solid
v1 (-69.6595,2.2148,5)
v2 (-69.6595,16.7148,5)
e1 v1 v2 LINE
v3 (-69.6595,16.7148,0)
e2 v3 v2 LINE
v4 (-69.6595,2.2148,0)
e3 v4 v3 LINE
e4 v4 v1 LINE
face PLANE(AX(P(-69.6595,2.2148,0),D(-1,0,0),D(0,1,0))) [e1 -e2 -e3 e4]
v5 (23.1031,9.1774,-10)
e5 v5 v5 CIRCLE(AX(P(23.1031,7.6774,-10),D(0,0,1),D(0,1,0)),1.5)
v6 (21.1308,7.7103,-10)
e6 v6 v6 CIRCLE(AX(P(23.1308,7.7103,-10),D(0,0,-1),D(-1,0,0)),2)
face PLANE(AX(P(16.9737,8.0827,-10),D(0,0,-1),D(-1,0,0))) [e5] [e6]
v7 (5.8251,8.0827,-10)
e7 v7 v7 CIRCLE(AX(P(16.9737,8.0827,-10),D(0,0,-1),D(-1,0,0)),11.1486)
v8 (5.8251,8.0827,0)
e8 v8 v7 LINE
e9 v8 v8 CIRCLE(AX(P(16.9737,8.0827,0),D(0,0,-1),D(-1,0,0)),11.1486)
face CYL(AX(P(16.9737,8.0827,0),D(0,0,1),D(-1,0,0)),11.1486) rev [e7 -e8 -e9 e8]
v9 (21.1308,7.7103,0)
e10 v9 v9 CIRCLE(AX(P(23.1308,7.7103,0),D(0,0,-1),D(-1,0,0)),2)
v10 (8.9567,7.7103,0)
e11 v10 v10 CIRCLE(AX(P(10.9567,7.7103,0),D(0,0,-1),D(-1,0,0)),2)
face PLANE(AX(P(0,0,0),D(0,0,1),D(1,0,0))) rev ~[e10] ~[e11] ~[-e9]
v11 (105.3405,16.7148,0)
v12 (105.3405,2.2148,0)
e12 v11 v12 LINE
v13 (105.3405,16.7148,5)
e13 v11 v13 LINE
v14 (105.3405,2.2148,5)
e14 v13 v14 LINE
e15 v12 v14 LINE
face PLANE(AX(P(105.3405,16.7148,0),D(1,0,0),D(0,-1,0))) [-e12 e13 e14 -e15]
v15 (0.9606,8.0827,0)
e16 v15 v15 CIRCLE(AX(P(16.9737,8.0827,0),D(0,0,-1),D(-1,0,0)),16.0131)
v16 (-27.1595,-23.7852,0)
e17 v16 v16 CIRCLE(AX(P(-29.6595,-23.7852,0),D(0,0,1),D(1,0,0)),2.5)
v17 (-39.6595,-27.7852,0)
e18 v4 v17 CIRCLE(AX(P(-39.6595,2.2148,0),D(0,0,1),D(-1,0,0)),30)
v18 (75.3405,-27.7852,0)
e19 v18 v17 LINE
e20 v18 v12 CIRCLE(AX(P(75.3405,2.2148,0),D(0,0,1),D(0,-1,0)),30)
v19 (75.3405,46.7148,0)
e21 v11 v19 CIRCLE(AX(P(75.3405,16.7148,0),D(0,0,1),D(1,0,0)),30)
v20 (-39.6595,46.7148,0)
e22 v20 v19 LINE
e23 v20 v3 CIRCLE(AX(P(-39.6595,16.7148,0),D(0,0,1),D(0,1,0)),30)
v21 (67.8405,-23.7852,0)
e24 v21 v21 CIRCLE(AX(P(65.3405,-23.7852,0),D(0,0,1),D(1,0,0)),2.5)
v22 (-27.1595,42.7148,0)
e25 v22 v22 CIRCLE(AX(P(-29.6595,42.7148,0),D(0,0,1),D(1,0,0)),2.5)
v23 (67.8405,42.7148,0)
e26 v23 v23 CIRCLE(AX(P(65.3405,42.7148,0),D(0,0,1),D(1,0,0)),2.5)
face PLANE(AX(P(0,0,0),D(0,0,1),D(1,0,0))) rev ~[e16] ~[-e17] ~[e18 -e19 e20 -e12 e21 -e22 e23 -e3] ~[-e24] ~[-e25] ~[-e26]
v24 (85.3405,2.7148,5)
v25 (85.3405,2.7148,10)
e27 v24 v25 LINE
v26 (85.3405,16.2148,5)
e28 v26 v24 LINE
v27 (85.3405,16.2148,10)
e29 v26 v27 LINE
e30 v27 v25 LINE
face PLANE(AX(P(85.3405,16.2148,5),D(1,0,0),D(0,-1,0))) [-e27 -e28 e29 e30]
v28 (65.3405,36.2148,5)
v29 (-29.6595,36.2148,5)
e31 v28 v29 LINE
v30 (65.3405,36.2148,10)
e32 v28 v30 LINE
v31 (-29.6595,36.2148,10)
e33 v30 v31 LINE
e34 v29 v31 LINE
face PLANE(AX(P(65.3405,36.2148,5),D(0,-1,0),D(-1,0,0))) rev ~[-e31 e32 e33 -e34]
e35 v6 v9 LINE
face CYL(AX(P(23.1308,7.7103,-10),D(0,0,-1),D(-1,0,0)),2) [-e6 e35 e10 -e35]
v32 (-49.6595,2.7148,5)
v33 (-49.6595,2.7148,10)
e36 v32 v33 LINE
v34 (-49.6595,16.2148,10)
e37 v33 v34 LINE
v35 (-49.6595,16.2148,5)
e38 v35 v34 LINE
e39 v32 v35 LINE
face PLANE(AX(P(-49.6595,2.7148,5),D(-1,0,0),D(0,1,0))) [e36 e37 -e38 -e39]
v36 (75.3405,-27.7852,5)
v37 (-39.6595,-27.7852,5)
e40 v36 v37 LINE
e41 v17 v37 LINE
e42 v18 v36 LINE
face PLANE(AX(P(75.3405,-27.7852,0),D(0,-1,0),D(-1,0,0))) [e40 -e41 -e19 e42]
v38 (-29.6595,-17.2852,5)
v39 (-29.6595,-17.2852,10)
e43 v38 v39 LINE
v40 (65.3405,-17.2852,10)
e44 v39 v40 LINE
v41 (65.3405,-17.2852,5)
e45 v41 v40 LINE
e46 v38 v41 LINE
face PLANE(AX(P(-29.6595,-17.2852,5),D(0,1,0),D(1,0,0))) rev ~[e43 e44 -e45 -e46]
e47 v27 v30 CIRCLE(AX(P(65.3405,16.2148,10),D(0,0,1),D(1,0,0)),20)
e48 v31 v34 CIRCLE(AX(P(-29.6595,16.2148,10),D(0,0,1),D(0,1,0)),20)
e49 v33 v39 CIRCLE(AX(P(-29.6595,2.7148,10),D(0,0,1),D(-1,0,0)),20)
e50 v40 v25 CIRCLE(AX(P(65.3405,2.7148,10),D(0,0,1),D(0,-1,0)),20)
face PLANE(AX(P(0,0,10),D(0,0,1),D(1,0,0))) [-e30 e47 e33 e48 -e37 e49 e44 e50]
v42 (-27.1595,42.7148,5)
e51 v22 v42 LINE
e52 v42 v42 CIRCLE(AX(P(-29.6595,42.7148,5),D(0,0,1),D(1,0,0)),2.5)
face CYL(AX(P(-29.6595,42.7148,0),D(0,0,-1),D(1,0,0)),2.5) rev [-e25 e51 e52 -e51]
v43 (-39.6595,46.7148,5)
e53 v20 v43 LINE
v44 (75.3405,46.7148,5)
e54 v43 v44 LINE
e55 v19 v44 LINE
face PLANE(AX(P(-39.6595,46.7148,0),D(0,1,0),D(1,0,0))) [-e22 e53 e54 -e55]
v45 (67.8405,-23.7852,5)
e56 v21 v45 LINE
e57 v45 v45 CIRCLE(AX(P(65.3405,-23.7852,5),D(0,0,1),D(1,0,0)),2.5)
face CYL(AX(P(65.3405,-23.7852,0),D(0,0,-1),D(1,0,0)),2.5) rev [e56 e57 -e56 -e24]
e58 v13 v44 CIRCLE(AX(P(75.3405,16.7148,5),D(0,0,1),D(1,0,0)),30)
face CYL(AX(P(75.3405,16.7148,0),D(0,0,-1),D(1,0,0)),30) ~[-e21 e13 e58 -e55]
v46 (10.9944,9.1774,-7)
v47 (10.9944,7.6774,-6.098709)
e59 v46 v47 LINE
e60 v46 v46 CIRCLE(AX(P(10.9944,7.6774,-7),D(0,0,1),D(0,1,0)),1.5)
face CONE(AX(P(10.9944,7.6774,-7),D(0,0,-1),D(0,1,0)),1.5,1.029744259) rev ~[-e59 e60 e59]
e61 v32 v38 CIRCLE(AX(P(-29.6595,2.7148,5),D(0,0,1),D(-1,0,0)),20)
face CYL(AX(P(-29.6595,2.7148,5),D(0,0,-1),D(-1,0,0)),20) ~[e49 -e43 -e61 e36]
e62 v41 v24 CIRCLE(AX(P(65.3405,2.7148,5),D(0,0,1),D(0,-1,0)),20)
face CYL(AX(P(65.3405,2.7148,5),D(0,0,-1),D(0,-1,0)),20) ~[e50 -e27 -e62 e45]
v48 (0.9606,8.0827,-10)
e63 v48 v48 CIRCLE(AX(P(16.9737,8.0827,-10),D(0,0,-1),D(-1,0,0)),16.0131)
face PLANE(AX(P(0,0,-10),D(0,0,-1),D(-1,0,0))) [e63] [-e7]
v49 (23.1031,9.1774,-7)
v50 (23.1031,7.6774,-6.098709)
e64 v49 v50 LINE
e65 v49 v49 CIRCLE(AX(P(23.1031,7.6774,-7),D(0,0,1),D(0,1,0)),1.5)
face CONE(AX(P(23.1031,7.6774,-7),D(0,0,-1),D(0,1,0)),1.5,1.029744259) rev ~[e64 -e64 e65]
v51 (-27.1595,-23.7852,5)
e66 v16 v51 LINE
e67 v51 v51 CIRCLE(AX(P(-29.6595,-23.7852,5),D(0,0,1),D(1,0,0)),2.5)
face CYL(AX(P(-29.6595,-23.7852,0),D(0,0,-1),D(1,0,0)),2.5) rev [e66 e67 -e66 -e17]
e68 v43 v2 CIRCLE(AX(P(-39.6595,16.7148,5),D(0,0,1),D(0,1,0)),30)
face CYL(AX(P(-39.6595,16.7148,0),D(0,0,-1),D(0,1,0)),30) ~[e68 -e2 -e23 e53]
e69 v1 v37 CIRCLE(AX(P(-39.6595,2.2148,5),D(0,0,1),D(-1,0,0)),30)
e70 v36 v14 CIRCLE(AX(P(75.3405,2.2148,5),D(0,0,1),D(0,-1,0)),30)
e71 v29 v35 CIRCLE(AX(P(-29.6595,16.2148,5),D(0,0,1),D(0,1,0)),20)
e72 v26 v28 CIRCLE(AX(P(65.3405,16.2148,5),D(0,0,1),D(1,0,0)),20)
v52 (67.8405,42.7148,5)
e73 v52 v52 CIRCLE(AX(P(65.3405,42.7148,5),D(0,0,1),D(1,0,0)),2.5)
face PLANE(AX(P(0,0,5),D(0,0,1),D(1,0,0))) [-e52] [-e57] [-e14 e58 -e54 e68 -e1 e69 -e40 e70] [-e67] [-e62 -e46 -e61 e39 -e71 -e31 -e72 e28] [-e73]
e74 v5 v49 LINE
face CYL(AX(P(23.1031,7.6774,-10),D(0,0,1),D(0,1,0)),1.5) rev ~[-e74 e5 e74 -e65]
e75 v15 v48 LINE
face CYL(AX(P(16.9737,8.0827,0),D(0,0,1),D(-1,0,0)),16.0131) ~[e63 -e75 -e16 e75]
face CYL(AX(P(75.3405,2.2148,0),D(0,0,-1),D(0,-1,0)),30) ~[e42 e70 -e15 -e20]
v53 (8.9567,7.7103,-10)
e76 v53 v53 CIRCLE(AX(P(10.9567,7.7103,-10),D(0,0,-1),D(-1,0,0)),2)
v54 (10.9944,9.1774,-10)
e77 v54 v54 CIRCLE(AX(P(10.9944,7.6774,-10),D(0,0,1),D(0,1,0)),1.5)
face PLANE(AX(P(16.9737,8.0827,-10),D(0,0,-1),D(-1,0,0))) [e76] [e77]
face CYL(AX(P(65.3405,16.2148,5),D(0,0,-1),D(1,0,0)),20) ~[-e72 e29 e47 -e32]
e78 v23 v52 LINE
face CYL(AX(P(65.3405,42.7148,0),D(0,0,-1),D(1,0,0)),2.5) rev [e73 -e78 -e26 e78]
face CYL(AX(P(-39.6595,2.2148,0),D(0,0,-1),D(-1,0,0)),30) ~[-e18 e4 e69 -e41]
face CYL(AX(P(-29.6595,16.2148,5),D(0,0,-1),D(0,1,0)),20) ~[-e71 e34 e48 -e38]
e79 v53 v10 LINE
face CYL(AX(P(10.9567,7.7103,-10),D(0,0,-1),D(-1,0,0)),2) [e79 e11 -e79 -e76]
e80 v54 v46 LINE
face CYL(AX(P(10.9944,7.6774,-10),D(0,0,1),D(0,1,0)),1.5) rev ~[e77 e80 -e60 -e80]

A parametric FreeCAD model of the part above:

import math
import FreeCAD as App
import Part
import Sketcher

V = App.Vector

doc = App.newDocument("Part")
body = doc.addObject("PartDesign::Body", "Body")

# Sketch on XY plane
sketch1 = doc.addObject("Sketcher::SketchObject", "Sketch")
body.addObject(sketch1)
sketch1.AttachmentSupport = (doc.XY_Plane, [""])
sketch1.MapMode = "FlatFace"
sketch1.addGeometry([
    Part.LineSegment(V(75.3, 46.7, 0), V(-39.7, 46.7, 0)),  # 0
    Part.ArcOfCircle(Part.Circle(V(-39.7, 16.7, 0), V(0, 0, 1), 30), math.radians(90), math.radians(180)),  # 1
    Part.LineSegment(V(-69.7, 16.7, 0), V(-69.7, 2.2, 0)),  # 2
    Part.ArcOfCircle(Part.Circle(V(-39.7, 2.2, 0), V(0, 0, 1), 30), math.radians(180), math.radians(270)),  # 3
    Part.LineSegment(V(-39.7, -27.8, 0), V(75.3, -27.8, 0)),  # 4
    Part.ArcOfCircle(Part.Circle(V(75.3, 2.2, 0), V(0, 0, 1), 30), math.radians(-90), math.radians(0)),  # 5
    Part.LineSegment(V(105.3, 2.2, 0), V(105.3, 16.7, 0)),  # 6
    Part.ArcOfCircle(Part.Circle(V(75.3, 16.7, 0), V(0, 0, 1), 30), math.radians(0), math.radians(90)),  # 7
    Part.Circle(V(-29.7, -23.8, 0), V(0, 0, 1), 2.5),  # 8
    Part.Circle(V(65.3, -23.8, 0), V(0, 0, 1), 2.5),  # 9
    Part.Circle(V(-29.7, 42.7, 0), V(0, 0, 1), 2.5),  # 10
    Part.Circle(V(65.3, 42.7, 0), V(0, 0, 1), 2.5),  # 11
], False)
sketch1.addConstraint([
    Sketcher.Constraint("Tangent", 0, 2, 1, 1),
    Sketcher.Constraint("Tangent", 1, 2, 2, 1),
    Sketcher.Constraint("Tangent", 2, 2, 3, 1),
    Sketcher.Constraint("Tangent", 3, 2, 4, 1),
    Sketcher.Constraint("Tangent", 4, 2, 5, 1),
    Sketcher.Constraint("Tangent", 5, 2, 6, 1),
    Sketcher.Constraint("Tangent", 6, 2, 7, 1),
    Sketcher.Constraint("Tangent", 7, 2, 0, 1),
    Sketcher.Constraint("Horizontal", 0),
    Sketcher.Constraint("Vertical", 2),
    Sketcher.Constraint("Horizontal", 4),
    Sketcher.Constraint("Vertical", 6),
    Sketcher.Constraint("Equal", 1, 3),
    Sketcher.Constraint("Equal", 3, 5),
    Sketcher.Constraint("Equal", 5, 7),
    Sketcher.Constraint("Equal", 8, 9),
    Sketcher.Constraint("Equal", 9, 10),
    Sketcher.Constraint("Equal", 10, 11),
    Sketcher.Constraint("Horizontal", 8, 3, 9, 3),
    Sketcher.Constraint("Horizontal", 10, 3, 11, 3),
    Sketcher.Constraint("Vertical", 8, 3, 10, 3),
    Sketcher.Constraint("Vertical", 9, 3, 11, 3),
    Sketcher.Constraint("Diameter", 8, 5.0),
    Sketcher.Constraint("Radius", 1, 30.0),
    Sketcher.Constraint("DistanceY", 10, 3, 0, 2, 4.0),
    Sketcher.Constraint("DistanceX", 1, 2, 10, 3, 40.0),
    Sketcher.Constraint("DistanceY", 3, 2, 8, 3, 4.0),
    Sketcher.Constraint("DistanceX", 9, 3, 5, 2, 40.0),
    Sketcher.Constraint("DistanceY", 8, 3, 10, 3, 66.5),
    Sketcher.Constraint("DistanceX", 0, 2, 0, 1, 115.0),
    Sketcher.Constraint("DistanceX", 1, 3, -1, 1, 39.6595),
    Sketcher.Constraint("DistanceY", -1, 1, 1, 3, 16.7148),
])
pad1 = doc.addObject("PartDesign::Pad", "Pad")
body.addObject(pad1)
pad1.Profile = sketch1
pad1.Length = 5

# Sketch on XY plane
sketch2 = doc.addObject("Sketcher::SketchObject", "Sketch001")
body.addObject(sketch2)
sketch2.AttachmentSupport = (doc.XY_Plane, [""])
sketch2.MapMode = "FlatFace"
sketch2.AttachmentOffset = App.Placement(V(0, 0, 5), App.Rotation())
sketch2.addGeometry([
    Part.LineSegment(V(85, 3, 0), V(85, 16, 0)),  # 0
    Part.ArcOfCircle(Part.Circle(V(65, 16, 0), V(0, 0, 1), 20), math.radians(0), math.radians(90)),  # 1
    Part.LineSegment(V(65, 36, 0), V(-30, 36, 0)),  # 2
    Part.ArcOfCircle(Part.Circle(V(-30, 16, 0), V(0, 0, 1), 20), math.radians(90), math.radians(180)),  # 3
    Part.LineSegment(V(-50, 16, 0), V(-50, 3, 0)),  # 4
    Part.ArcOfCircle(Part.Circle(V(-30, 3, 0), V(0, 0, 1), 20), math.radians(180), math.radians(270)),  # 5
    Part.LineSegment(V(-30, -17, 0), V(65, -17, 0)),  # 6
    Part.ArcOfCircle(Part.Circle(V(65, 3, 0), V(0, 0, 1), 20), math.radians(-90), math.radians(0)),  # 7
], False)
sketch2.addConstraint([
    Sketcher.Constraint("Tangent", 0, 2, 1, 1),
    Sketcher.Constraint("Tangent", 1, 2, 2, 1),
    Sketcher.Constraint("Tangent", 2, 2, 3, 1),
    Sketcher.Constraint("Tangent", 3, 2, 4, 1),
    Sketcher.Constraint("Tangent", 4, 2, 5, 1),
    Sketcher.Constraint("Tangent", 5, 2, 6, 1),
    Sketcher.Constraint("Tangent", 6, 2, 7, 1),
    Sketcher.Constraint("Tangent", 7, 2, 0, 1),
    Sketcher.Constraint("Vertical", 0),
    Sketcher.Constraint("Horizontal", 2),
    Sketcher.Constraint("Vertical", 4),
    Sketcher.Constraint("Horizontal", 6),
    Sketcher.Constraint("Equal", 1, 3),
    Sketcher.Constraint("Equal", 3, 5),
    Sketcher.Constraint("Equal", 5, 7),
    Sketcher.Constraint("Radius", 1, 20.0),
    Sketcher.Constraint("DistanceX", 2, 2, 2, 1, 95.0),
    Sketcher.Constraint("DistanceY", 0, 1, 0, 2, 13.5),
    Sketcher.Constraint("DistanceX", -1, 1, 1, 3, 65.3405),
    Sketcher.Constraint("DistanceY", -1, 1, 1, 3, 16.2148),
])
pad2 = doc.addObject("PartDesign::Pad", "Pad001")
body.addObject(pad2)
pad2.Profile = sketch2
pad2.Length = 5

# Sketch on XY plane
sketch3 = doc.addObject("Sketcher::SketchObject", "Sketch002")
body.addObject(sketch3)
sketch3.AttachmentSupport = (doc.XY_Plane, [""])
sketch3.MapMode = "FlatFace"
sketch3.addGeometry([
    Part.Circle(V(17, 8, 0), V(0, 0, 1), 16),
    Part.Circle(V(17, 8, 0), V(0, 0, 1), 11),
], False)
sketch3.addConstraint([
    Sketcher.Constraint("Coincident", 1, 3, 0, 3),
    Sketcher.Constraint("Diameter", 0, 32.0262),
    Sketcher.Constraint("Diameter", 1, 22.2972),
    Sketcher.Constraint("DistanceX", -1, 1, 0, 3, 16.9737),
    Sketcher.Constraint("DistanceY", -1, 1, 0, 3, 8.0827),
])
pad3 = doc.addObject("PartDesign::Pad", "Pad002")
body.addObject(pad3)
pad3.Profile = sketch3
pad3.Length = 10
pad3.Reversed = True

# Sketch on XY plane
sketch4 = doc.addObject("Sketcher::SketchObject", "Sketch003")
body.addObject(sketch4)
sketch4.AttachmentSupport = (doc.XY_Plane, [""])
sketch4.MapMode = "FlatFace"
sketch4.AttachmentOffset = App.Placement(V(0, 0, -10), App.Rotation())
sketch4.addGeometry([
    Part.Circle(V(23.1, 7.7, 0), V(0, 0, 1), 2),
    Part.Circle(V(11, 7.7, 0), V(0, 0, 1), 2),
], False)
sketch4.addConstraint([
    Sketcher.Constraint("Equal", 0, 1),
    Sketcher.Constraint("Horizontal", 0, 3, 1, 3),
    Sketcher.Constraint("Diameter", 0, 4.0),
    Sketcher.Constraint("DistanceX", 1, 3, 0, 3, 12.174),
    Sketcher.Constraint("DistanceX", -1, 1, 0, 3, 23.1308),
    Sketcher.Constraint("DistanceY", -1, 1, 0, 3, 7.7103),
])
pad4 = doc.addObject("PartDesign::Pad", "Pad003")
body.addObject(pad4)
pad4.Profile = sketch4
pad4.Length = 10

# Sketch on XY plane
sketch5 = doc.addObject("Sketcher::SketchObject", "Sketch004")
body.addObject(sketch5)
sketch5.AttachmentSupport = (doc.XY_Plane, [""])
sketch5.MapMode = "FlatFace"
sketch5.AttachmentOffset = App.Placement(V(0, 0, -10), App.Rotation())
sketch5.addGeometry([
    Part.Circle(V(23.1, 7.7, 0), V(0, 0, 1), 1.5),
    Part.Circle(V(11, 7.7, 0), V(0, 0, 1), 1.5),
], False)
sketch5.addConstraint([
    Sketcher.Constraint("Equal", 0, 1),
    Sketcher.Constraint("Horizontal", 0, 3, 1, 3),
    Sketcher.Constraint("Diameter", 0, 3.0),
    Sketcher.Constraint("DistanceX", -1, 1, 0, 3, 23.103),
    Sketcher.Constraint("DistanceY", -1, 1, 0, 3, 7.6774),
    Sketcher.Constraint("DistanceX", -1, 1, 1, 3, 10.9944),
])
doc.recompute()
hole = doc.addObject("PartDesign::Hole", "Hole")
body.addObject(hole)
hole.Profile = sketch5
hole.ThreadType = "None"
hole.Diameter = 3
hole.DepthType = "Dimension"
hole.Depth = 3
hole.DrillPoint = "Angled"
hole.DrillPointAngle = 118
hole.Reversed = True

doc.recompute()
